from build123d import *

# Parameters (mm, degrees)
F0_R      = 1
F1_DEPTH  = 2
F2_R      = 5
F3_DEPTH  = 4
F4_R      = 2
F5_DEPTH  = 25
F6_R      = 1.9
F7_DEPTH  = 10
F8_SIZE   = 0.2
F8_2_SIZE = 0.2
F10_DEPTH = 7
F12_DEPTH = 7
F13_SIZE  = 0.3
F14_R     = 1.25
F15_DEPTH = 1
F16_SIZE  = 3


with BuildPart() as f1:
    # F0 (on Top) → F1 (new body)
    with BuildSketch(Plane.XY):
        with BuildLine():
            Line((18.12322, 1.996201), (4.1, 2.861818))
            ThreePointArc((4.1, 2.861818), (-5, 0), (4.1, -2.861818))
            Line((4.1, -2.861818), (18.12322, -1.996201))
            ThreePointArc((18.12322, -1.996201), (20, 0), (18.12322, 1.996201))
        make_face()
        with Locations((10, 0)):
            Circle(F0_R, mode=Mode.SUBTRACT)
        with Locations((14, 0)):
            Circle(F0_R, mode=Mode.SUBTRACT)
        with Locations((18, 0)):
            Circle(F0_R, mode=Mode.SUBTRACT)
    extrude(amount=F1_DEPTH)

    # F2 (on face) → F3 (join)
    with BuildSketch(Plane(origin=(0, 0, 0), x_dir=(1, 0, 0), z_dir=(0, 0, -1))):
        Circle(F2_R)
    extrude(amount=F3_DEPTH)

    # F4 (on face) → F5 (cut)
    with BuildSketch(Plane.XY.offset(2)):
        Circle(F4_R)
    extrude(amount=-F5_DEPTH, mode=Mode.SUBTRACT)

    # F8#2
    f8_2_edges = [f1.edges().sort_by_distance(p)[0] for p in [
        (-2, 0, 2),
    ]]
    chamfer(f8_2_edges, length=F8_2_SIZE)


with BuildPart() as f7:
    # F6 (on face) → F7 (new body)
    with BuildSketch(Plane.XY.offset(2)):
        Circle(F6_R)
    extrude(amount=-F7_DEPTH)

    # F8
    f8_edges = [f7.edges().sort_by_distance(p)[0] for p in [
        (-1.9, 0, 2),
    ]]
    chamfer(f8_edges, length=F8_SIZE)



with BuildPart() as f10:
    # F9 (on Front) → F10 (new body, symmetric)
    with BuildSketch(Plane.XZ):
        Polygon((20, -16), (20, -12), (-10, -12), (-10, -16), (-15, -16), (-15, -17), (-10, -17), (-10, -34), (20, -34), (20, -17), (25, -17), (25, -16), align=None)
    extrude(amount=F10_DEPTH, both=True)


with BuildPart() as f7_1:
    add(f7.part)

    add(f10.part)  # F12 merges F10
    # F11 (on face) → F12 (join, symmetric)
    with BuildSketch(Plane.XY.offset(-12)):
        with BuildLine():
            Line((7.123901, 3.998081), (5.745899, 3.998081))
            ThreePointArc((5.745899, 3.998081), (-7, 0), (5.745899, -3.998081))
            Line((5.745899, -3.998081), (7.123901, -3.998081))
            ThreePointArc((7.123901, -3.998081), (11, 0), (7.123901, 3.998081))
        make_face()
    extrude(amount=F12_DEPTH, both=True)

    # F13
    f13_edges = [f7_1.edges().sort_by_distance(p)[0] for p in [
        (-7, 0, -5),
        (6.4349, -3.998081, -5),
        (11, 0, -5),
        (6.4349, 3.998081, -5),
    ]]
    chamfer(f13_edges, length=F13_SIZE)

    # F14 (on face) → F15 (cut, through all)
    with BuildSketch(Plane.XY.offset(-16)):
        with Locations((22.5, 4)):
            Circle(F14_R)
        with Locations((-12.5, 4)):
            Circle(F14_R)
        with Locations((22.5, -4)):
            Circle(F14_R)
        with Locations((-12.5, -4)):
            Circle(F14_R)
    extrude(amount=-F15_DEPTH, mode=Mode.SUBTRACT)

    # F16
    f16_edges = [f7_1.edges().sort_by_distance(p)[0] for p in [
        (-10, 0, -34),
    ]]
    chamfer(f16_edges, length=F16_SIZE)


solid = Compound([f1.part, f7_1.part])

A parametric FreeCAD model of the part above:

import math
import FreeCAD as App
import Part
import Sketcher
from FreeCAD import Vector
Q = App.Units.Quantity


def edges_at(feature, points):
    """Names of the edges that pass closest to the given points."""
    edges = feature.Shape.Edges
    near = lambda p: min(range(len(edges)), key=lambda i: edges[i].distToShape(Part.Vertex(*p))[0])
    return sorted({f"Edge{near(p) + 1}" for p in points})


def add_polygon(sketch, points):
    """Adds a closed chain of lines whose ends are joined by coincident constraints."""
    first, n = sketch.GeometryCount, len(points)
    for a, b in zip(points, points[1:] + points[:1]):
        sketch.addGeometry(Part.LineSegment(App.Vector(*a, 0), App.Vector(*b, 0)), False)
    for i in range(n):
        sketch.addConstraint(Sketcher.Constraint("Coincident", first + i, 2, first + (i + 1) % n, 1))

doc = App.newDocument("Part")
body = doc.addObject("PartDesign::Body", "Body")

# Sketch on XY plane
sketch1 = body.newObject("Sketcher::SketchObject", "Sketch")
sketch1.AttachmentSupport = (doc.getObject("XY_Plane"), [""])
sketch1.MapMode = "FlatFace"
sketch1.addGeometry([
    Part.LineSegment(Vector(18.12322, 1.996201, 0), Vector(4.1, 2.861818, 0)),  # 0
    Part.ArcOfCircle(Part.Circle(Vector(0, 0, 0), Vector(0, 0, 1), 5), math.radians(34.915211), math.radians(325.084789)),  # 1
    Part.LineSegment(Vector(4.1, -2.861818, 0), Vector(18.12322, -1.996201, 0)),  # 2
    Part.ArcOfCircle(Part.Circle(Vector(18, 0, 0), Vector(0, 0, 1), 2), math.radians(-86.467759), math.radians(86.467759)),  # 3
    Part.Circle(Vector(10, 0, 0), Vector(0, 0, 1), 1),  # 4
    Part.Circle(Vector(14, 0, 0), Vector(0, 0, 1), 1),  # 5
    Part.Circle(Vector(18, 0, 0), Vector(0, 0, 1), 1),  # 6
], False)
sketch1.addConstraint([
    Sketcher.Constraint("Coincident", 0, 2, 1, 1),
    Sketcher.Constraint("Coincident", 1, 2, 2, 1),
    Sketcher.Constraint("Tangent", 2, 2, 3, 1),
    Sketcher.Constraint("Tangent", 3, 2, 0, 1),
    Sketcher.Constraint("Coincident", 1, 3, -1, 1),
    Sketcher.Constraint("Coincident", 6, 3, 3, 3),
    Sketcher.Constraint("Equal", 4, 5),
    Sketcher.Constraint("Equal", 5, 6),
    Sketcher.Constraint("Symmetric", 2, 2, 3, 2, -1),
    Sketcher.Constraint("PointOnObject", 4, 3, -1),
    Sketcher.Constraint("PointOnObject", 5, 3, -1),
    Sketcher.Constraint("Diameter", 4, Q("2 mm")),
    Sketcher.Constraint("Radius", 1, Q("5 mm")),
    Sketcher.Constraint("Radius", 3, Q("2 mm")),
    Sketcher.Constraint("DistanceX", -1, 1, 3, 3, Q("18 mm")),
    Sketcher.Constraint("DistanceX", -1, 1, 4, 3, Q("10 mm")),
    Sketcher.Constraint("DistanceX", -1, 1, 5, 3, Q("14 mm")),
    Sketcher.Constraint("DistanceX", -1, 1, 0, 2, Q("4.1 mm")),
])
pad1 = body.newObject("PartDesign::Pad", "Pad")
pad1.Profile = sketch1
pad1.Length = 2

# Sketch on XY plane
sketch2 = body.newObject("Sketcher::SketchObject", "Sketch001")
sketch2.AttachmentSupport = (doc.getObject("XY_Plane"), [""])
sketch2.MapMode = "FlatFace"
sketch2.addGeometry(Part.Circle(Vector(0, 0, 0), Vector(0, 0, 1), 5), False)
sketch2.addConstraint([
    Sketcher.Constraint("Coincident", 0, 3, -1, 1),
    Sketcher.Constraint("Diameter", 0, Q("10 mm")),
])
pad2 = body.newObject("PartDesign::Pad", "Pad001")
pad2.Profile = sketch2
pad2.Length = 4
pad2.Reversed = True

# Sketch on XY plane
sketch3 = body.newObject("Sketcher::SketchObject", "Sketch002")
sketch3.AttachmentSupport = (doc.getObject("XY_Plane"), [""])
sketch3.MapMode = "FlatFace"
sketch3.AttachmentOffset = App.Placement(Vector(0, 0, 2), App.Rotation())
sketch3.addGeometry(Part.Circle(Vector(0, 0, 0), Vector(0, 0, 1), 2), False)
sketch3.addConstraint([
    Sketcher.Constraint("Coincident", 0, 3, -1, 1),
    Sketcher.Constraint("Diameter", 0, Q("4 mm")),
])
pocket1 = body.newObject("PartDesign::Pocket", "Pocket")
pocket1.Profile = sketch3
pocket1.Length = 25
doc.recompute()

chamfer = body.newObject("PartDesign::Chamfer", "Chamfer")
chamfer.Base = (pocket1, edges_at(pocket1, [(-2, 0, 2)]))
chamfer.Size = 0.2
body2 = doc.addObject("PartDesign::Body", "Body001")

# Sketch on XY plane
sketch4 = body2.newObject("Sketcher::SketchObject", "Sketch003")
sketch4.AttachmentSupport = (doc.getObject("XY_Plane001"), [""])
sketch4.MapMode = "FlatFace"
sketch4.AttachmentOffset = App.Placement(Vector(0, 0, 2), App.Rotation())
sketch4.addGeometry(Part.Circle(Vector(0, 0, 0), Vector(0, 0, 1), 1.9), False)
sketch4.addConstraint([
    Sketcher.Constraint("Coincident", 0, 3, -1, 1),
    Sketcher.Constraint("Diameter", 0, Q("3.8 mm")),
])
pad3 = body2.newObject("PartDesign::Pad", "Pad002")
pad3.Profile = sketch4
pad3.Length = 10
pad3.Reversed = True
doc.recompute()

chamfer2 = body2.newObject("PartDesign::Chamfer", "Chamfer001")
chamfer2.Base = (pad3, edges_at(pad3, [(-1.9, 0, 2)]))
chamfer2.Size = 0.2
body3 = doc.addObject("PartDesign::Body", "Body002")

# Sketch on XZ plane
sketch5 = body3.newObject("Sketcher::SketchObject", "Sketch004")
sketch5.AttachmentSupport = (doc.getObject("XZ_Plane002"), [""])
sketch5.MapMode = "FlatFace"
add_polygon(sketch5, [(20, -16), (20, -12), (-10, -12), (-10, -16), (-15, -16), (-15, -17), (-10, -17), (-10, -34), (20, -34), (20, -17), (25, -17), (25, -16)])  # lines 0-11
sketch5.addConstraint([
    Sketcher.Constraint("Vertical", 0),
    Sketcher.Constraint("Horizontal", 1),
    Sketcher.Constraint("Vertical", 2),
    Sketcher.Constraint("Horizontal", 3),
    Sketcher.Constraint("Vertical", 4),
    Sketcher.Constraint("Horizontal", 5),
    Sketcher.Constraint("Vertical", 6),
    Sketcher.Constraint("Horizontal", 7),
    Sketcher.Constraint("Vertical", 8),
    Sketcher.Constraint("Horizontal", 9),
    Sketcher.Constraint("Vertical", 10),
    Sketcher.Constraint("Horizontal", 11),
    Sketcher.Constraint("Horizontal", 5, 2, 8, 2),
    Sketcher.Constraint("Horizontal", 3, 2, 10, 2),
    Sketcher.Constraint("Vertical", 2, 2, 5, 2),
    Sketcher.Constraint("Vertical", 0, 2, 7, 2),
    Sketcher.Constraint("Equal", 5, 9),
    Sketcher.Constraint("DistanceX", 1, 2, 1, 1, Q("30 mm")),
    Sketcher.Constraint("DistanceX", 3, 2, 3, 1, Q("5 mm")),
    Sketcher.Constraint("DistanceY", 0, 1, 0, 2, Q("4 mm")),
    Sketcher.Constraint("DistanceY", 4, 2, 4, 1, Q("1 mm")),
    Sketcher.Constraint("DistanceY", 6, 2, 6, 1, Q("17 mm")),
    Sketcher.Constraint("DistanceX", -1, 1, 0, 2, Q("20 mm")),
    Sketcher.Constraint("DistanceY", 0, 2, -1, 1, Q("12 mm")),
])
pad4 = body3.newObject("PartDesign::Pad", "Pad003")
pad4.Profile = sketch5
pad4.Length = 14
pad4.Midplane = True
body2.AllowCompound = True
doc.recompute()

boolean = body2.newObject("PartDesign::Boolean", "Boolean")
boolean.Type = "Fuse"
boolean.addObjects([body3])

# Sketch on XY plane
sketch6 = body2.newObject("Sketcher::SketchObject", "Sketch005")
sketch6.AttachmentSupport = (doc.getObject("XY_Plane001"), [""])
sketch6.MapMode = "FlatFace"
sketch6.AttachmentOffset = App.Placement(Vector(0, 0, -12), App.Rotation())
sketch6.addGeometry([
    Part.LineSegment(Vector(7.123901, 3.998081, 0), Vector(5.745899, 3.998081, 0)),
    Part.ArcOfCircle(Part.Circle(Vector(0, 0, 0), Vector(0, 0, 1), 7), math.radians(34.830765), math.radians(325.169235)),
    Part.LineSegment(Vector(5.745899, -3.998081, 0), Vector(7.123901, -3.998081, 0)),
    Part.ArcOfCircle(Part.Circle(Vector(7, 0, 0), Vector(0, 0, 1), 4), math.radians(-88.224959), math.radians(88.224959)),
], False)
sketch6.addConstraint([
    Sketcher.Constraint("Coincident", 0, 2, 1, 1),
    Sketcher.Constraint("Coincident", 1, 2, 2, 1),
    Sketcher.Constraint("Coincident", 2, 2, 3, 1),
    Sketcher.Constraint("Coincident", 3, 2, 0, 1),
    Sketcher.Constraint("Horizontal", 0),
    Sketcher.Constraint("Horizontal", 2),
    Sketcher.Constraint("Coincident", 1, 3, -1, 1),
    Sketcher.Constraint("Symmetric", 2, 2, 3, 2, -1),
    Sketcher.Constraint("Radius", 1, Q("7 mm")),
    Sketcher.Constraint("Radius", 3, Q("4 mm")),
    Sketcher.Constraint("DistanceX", -1, 1, 3, 3, Q("7 mm")),
    Sketcher.Constraint("DistanceX", 1, 2, 2, 2, Q("1.378002 mm")),
])
pad5 = body2.newObject("PartDesign::Pad", "Pad004")
pad5.Profile = sketch6
pad5.Length = 14
pad5.Midplane = True
doc.recompute()

chamfer3 = body2.newObject("PartDesign::Chamfer", "Chamfer002")
chamfer3.Base = (pad5, edges_at(pad5, [
    (-7, 0, -5),
    (6.435, -3.998, -5),
    (11, 0, -5),
    (6.435, 3.998, -5),
]))
chamfer3.Size = 0.3

# Sketch on XY plane
sketch7 = body2.newObject("Sketcher::SketchObject", "Sketch006")
sketch7.AttachmentSupport = (doc.getObject("XY_Plane001"), [""])
sketch7.MapMode = "FlatFace"
sketch7.AttachmentOffset = App.Placement(Vector(0, 0, -16), App.Rotation())
sketch7.addGeometry([
    Part.Circle(Vector(22.5, 4, 0), Vector(0, 0, 1), 1.25),
    Part.Circle(Vector(-12.5, 4, 0), Vector(0, 0, 1), 1.25),
    Part.Circle(Vector(22.5, -4, 0), Vector(0, 0, 1), 1.25),
    Part.Circle(Vector(-12.5, -4, 0), Vector(0, 0, 1), 1.25),
], False)
sketch7.addConstraint([
    Sketcher.Constraint("Equal", 0, 1),
    Sketcher.Constraint("Equal", 1, 2),
    Sketcher.Constraint("Equal", 2, 3),
    Sketcher.Constraint("Symmetric", 0, 3, 2, 3, -1),
    Sketcher.Constraint("Symmetric", 1, 3, 3, 3, -1),
    Sketcher.Constraint("Horizontal", 0, 3, 1, 3),
    Sketcher.Constraint("Diameter", 0, Q("2.5 mm")),
    Sketcher.Constraint("DistanceY", -1, 1, 0, 3, Q("4 mm")),
    Sketcher.Constraint("DistanceX", 1, 3, 0, 3, Q("35 mm")),
    Sketcher.Constraint("DistanceX", -1, 1, 0, 3, Q("22.5 mm")),
])
pocket2 = body2.newObject("PartDesign::Pocket", "Pocket001")
pocket2.Profile = sketch7
pocket2.Type = "ThroughAll"
doc.recompute()

chamfer4 = body2.newObject("PartDesign::Chamfer", "Chamfer003")
chamfer4.Base = (pocket2, edges_at(pocket2, [(-10, 0, -34)]))
chamfer4.Size = 3

doc.recompute()
